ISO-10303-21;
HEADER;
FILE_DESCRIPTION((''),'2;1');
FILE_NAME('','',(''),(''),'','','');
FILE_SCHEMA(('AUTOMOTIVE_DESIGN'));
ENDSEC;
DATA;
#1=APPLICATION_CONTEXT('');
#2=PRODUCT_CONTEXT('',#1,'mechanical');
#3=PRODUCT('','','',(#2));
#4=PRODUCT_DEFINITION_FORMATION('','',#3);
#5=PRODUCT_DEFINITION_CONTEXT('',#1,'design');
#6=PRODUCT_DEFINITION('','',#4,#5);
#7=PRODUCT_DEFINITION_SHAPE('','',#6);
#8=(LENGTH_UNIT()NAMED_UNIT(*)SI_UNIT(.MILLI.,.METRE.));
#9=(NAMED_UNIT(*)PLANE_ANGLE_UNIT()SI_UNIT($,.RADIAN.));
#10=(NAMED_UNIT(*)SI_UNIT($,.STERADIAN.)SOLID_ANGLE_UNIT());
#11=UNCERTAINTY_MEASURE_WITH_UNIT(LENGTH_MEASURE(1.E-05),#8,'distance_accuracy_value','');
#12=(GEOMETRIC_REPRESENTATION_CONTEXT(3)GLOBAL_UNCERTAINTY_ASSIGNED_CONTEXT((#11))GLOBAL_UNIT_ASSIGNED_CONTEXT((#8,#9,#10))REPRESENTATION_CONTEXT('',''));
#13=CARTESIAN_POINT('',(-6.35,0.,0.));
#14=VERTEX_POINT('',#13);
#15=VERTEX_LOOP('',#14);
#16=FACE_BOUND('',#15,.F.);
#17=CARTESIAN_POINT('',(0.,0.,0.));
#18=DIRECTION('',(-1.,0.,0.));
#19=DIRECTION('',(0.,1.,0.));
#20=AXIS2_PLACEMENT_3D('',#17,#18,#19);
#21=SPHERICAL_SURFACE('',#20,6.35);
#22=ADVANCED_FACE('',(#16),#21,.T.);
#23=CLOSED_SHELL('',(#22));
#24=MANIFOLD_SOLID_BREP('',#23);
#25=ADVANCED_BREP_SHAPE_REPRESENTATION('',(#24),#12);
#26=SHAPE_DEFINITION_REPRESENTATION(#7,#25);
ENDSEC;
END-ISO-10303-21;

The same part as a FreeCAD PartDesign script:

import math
import FreeCAD as App
import Part
import Sketcher
from FreeCAD import Vector
Q = App.Units.Quantity

doc = App.newDocument("Part")
body = doc.addObject("PartDesign::Body", "Body")

# Sketch on XY plane
sketch1 = body.newObject("Sketcher::SketchObject", "Sketch")
sketch1.AttachmentSupport = (doc.getObject("XY_Plane"), [""])
sketch1.MapMode = "FlatFace"
sketch1.addGeometry([
    Part.LineSegment(Vector(-6, 0, 0), Vector(6, 0, 0)),
    Part.ArcOfCircle(Part.Circle(Vector(0, 0, 0), Vector(0, 0, 1), 6), math.radians(0), math.radians(180)),
], False)
sketch1.addConstraint([
    Sketcher.Constraint("Coincident", 0, 1, 1, 2),
    Sketcher.Constraint("Coincident", 1, 1, 0, 2),
    Sketcher.Constraint("Horizontal", 0),
    Sketcher.Constraint("Coincident", 1, 3, -1, 1),
    Sketcher.Constraint("PointOnObject", 0, 1, -1),
    Sketcher.Constraint("Radius", 1, Q("0.25 in")),
])
revolution = body.newObject("PartDesign::Revolution", "Revolution")
revolution.Profile = sketch1
revolution.ReferenceAxis = (sketch1, ["H_Axis"])
revolution.Angle = 360

doc.recompute()
